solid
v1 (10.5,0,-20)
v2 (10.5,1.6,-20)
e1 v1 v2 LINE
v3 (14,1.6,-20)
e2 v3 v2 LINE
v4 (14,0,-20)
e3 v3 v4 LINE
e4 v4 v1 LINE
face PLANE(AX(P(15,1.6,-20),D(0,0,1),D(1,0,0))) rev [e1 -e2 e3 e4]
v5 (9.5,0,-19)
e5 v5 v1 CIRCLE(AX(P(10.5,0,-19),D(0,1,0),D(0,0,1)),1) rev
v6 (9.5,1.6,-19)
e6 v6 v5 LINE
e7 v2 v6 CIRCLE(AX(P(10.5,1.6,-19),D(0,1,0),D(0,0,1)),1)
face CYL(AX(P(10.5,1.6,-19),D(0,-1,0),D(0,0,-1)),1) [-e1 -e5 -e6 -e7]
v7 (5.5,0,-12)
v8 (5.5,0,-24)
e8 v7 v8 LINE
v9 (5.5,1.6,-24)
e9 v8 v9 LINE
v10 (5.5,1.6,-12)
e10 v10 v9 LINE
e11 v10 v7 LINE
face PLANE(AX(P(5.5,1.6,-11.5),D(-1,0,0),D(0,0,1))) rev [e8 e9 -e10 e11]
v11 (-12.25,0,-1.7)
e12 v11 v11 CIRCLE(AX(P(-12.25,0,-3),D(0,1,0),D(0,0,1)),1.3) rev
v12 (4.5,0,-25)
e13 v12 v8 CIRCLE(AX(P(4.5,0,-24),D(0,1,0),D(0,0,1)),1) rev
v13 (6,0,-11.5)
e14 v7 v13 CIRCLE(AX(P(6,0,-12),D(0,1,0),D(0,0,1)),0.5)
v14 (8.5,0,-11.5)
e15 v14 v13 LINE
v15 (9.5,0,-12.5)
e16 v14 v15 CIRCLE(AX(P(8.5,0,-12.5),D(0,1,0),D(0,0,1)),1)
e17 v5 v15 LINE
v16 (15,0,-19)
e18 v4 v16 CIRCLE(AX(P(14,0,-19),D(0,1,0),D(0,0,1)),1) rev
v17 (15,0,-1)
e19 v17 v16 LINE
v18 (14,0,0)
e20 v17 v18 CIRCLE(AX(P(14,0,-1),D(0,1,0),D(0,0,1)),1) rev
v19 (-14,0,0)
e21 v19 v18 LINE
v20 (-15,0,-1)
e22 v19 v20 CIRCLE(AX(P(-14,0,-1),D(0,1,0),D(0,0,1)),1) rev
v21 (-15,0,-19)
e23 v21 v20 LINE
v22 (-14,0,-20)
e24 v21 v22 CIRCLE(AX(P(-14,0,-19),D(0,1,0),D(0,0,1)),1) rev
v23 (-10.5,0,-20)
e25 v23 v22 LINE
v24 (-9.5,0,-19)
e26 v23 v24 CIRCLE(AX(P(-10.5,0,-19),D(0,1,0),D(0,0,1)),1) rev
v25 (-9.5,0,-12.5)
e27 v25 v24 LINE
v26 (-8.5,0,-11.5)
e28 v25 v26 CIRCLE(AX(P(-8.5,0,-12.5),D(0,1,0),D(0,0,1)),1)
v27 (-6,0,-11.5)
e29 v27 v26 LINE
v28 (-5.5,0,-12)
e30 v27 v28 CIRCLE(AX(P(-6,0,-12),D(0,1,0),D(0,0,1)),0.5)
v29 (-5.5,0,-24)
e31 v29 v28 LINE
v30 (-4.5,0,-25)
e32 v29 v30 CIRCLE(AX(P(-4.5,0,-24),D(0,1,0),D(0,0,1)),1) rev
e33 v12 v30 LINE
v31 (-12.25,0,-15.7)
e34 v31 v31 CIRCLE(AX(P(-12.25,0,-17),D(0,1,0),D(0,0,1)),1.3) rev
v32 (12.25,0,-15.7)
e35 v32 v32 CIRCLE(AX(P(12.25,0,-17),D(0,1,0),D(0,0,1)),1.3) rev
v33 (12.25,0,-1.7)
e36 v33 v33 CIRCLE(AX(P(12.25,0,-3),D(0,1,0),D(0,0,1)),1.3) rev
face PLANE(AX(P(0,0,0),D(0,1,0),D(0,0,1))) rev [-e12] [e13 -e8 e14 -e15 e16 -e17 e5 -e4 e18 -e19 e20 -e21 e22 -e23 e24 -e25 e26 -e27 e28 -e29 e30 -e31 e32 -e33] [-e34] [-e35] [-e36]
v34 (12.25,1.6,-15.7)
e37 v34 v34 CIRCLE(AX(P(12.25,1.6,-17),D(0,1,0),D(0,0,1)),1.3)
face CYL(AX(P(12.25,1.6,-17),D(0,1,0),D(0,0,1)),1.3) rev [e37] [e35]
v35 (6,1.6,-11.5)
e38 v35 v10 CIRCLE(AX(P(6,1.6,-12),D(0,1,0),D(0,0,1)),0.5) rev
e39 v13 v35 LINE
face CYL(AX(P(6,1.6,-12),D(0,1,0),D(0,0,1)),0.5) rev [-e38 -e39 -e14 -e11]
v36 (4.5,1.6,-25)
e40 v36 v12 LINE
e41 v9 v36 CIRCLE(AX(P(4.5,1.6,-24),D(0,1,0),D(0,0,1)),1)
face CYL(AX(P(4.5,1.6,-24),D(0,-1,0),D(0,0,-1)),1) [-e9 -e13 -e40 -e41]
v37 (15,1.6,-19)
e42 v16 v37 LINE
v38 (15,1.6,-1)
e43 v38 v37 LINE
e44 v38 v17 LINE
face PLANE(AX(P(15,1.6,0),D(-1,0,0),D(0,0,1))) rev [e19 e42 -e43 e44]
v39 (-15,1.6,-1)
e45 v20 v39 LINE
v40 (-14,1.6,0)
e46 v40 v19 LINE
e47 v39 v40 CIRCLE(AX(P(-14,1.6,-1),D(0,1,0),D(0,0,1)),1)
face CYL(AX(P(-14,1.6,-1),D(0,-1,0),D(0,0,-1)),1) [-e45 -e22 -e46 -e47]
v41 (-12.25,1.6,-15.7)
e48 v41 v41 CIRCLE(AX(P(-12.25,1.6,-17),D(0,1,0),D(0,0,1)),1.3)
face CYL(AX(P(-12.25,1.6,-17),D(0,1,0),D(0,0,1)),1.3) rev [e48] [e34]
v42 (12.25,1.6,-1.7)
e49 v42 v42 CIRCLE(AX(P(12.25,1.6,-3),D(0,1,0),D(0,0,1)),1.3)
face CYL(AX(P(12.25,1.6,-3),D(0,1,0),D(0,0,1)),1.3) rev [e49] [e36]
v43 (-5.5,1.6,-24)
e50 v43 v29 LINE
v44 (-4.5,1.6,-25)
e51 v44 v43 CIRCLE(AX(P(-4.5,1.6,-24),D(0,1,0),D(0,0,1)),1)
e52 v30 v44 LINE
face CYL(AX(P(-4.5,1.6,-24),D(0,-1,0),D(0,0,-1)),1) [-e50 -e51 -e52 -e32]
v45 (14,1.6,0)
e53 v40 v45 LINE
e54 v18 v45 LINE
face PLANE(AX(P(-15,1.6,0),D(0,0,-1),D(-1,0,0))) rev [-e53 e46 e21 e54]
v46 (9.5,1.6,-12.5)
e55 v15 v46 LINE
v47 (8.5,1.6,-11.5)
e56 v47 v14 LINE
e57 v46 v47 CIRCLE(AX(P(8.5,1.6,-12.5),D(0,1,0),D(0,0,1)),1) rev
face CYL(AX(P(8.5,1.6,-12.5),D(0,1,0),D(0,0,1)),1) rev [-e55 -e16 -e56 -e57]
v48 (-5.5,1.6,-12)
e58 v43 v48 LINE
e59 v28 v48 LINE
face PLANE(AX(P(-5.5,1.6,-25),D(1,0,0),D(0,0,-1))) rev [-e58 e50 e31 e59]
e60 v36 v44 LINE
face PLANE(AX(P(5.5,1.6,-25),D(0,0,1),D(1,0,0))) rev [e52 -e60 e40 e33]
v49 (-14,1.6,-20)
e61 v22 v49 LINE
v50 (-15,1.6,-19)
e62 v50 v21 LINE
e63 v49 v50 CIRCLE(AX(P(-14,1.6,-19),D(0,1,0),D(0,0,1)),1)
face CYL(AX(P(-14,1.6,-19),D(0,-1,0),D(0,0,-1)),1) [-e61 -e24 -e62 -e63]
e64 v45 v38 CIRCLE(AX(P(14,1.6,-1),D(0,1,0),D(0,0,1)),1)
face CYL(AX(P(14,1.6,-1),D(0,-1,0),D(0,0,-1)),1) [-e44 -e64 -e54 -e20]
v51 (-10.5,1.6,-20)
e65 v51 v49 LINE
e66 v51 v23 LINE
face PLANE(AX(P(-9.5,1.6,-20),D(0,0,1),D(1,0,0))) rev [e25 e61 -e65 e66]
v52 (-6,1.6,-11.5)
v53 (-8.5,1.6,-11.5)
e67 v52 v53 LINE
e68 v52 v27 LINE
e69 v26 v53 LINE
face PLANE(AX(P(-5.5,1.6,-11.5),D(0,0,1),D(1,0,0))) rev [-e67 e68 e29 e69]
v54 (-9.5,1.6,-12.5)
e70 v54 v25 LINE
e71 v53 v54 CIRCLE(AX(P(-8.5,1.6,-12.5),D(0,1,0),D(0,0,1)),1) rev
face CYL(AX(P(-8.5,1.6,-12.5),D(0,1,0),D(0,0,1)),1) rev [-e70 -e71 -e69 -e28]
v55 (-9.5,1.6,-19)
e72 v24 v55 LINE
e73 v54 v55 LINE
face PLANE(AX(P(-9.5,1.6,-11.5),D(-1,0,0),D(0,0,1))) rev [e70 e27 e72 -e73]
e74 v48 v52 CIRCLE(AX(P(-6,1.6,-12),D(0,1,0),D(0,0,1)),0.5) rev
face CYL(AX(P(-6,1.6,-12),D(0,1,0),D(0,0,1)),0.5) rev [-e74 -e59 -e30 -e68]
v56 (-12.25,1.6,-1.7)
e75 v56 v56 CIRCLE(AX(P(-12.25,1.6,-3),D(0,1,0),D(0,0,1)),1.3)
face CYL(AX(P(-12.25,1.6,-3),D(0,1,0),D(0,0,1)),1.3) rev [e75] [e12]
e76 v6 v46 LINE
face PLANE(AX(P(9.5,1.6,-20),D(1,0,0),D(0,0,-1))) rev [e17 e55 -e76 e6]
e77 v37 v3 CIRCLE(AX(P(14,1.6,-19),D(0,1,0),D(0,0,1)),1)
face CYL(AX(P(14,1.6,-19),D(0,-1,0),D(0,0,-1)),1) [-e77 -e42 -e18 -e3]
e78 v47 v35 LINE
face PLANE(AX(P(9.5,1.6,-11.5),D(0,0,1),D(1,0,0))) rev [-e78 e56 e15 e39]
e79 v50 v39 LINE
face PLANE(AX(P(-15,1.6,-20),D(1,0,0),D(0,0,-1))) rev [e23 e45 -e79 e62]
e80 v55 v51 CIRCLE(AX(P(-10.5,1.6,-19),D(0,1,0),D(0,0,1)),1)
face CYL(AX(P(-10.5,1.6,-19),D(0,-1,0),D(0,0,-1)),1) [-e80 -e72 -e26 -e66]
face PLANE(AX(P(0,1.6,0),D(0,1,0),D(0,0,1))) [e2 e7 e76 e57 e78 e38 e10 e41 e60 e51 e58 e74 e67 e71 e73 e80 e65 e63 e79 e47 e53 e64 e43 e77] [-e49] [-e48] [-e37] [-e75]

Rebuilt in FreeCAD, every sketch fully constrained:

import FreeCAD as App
import Part
import Sketcher
from FreeCAD import Vector
Q = App.Units.Quantity


def edges_at(feature, points):
    """Names of the edges that pass closest to the given points."""
    edges = feature.Shape.Edges
    near = lambda p: min(range(len(edges)), key=lambda i: edges[i].distToShape(Part.Vertex(*p))[0])
    return sorted({f"Edge{near(p) + 1}" for p in points})


def add_polygon(sketch, points):
    """Adds a closed chain of lines whose ends are joined by coincident constraints."""
    first, n = sketch.GeometryCount, len(points)
    for a, b in zip(points, points[1:] + points[:1]):
        sketch.addGeometry(Part.LineSegment(App.Vector(*a, 0), App.Vector(*b, 0)), False)
    for i in range(n):
        sketch.addConstraint(Sketcher.Constraint("Coincident", first + i, 2, first + (i + 1) % n, 1))

doc = App.newDocument("Part")
body = doc.addObject("PartDesign::Body", "Body")

# Sketch on XZ plane
sketch1 = body.newObject("Sketcher::SketchObject", "Sketch")
sketch1.AttachmentSupport = (doc.getObject("XZ_Plane"), [""])
sketch1.MapMode = "FlatFace"
add_polygon(sketch1, [(-15, -20), (-15, 0), (15, 0), (15, -20), (9.5, -20), (9.5, -11.5), (5.5, -11.5), (5.5, -25), (-5.5, -25), (-5.5, -11.5), (-9.5, -11.5), (-9.5, -20)])  # lines 0-11
sketch1.addConstraint([
    Sketcher.Constraint("Vertical", 0),
    Sketcher.Constraint("Horizontal", 1),
    Sketcher.Constraint("Vertical", 2),
    Sketcher.Constraint("Horizontal", 3),
    Sketcher.Constraint("Vertical", 4),
    Sketcher.Constraint("Horizontal", 5),
    Sketcher.Constraint("Vertical", 6),
    Sketcher.Constraint("Horizontal", 7),
    Sketcher.Constraint("Vertical", 8),
    Sketcher.Constraint("Horizontal", 9),
    Sketcher.Constraint("Vertical", 10),
    Sketcher.Constraint("Horizontal", 11),
    Sketcher.Constraint("Symmetric", 0, 2, 1, 2, -1, 1),
    Sketcher.Constraint("Symmetric", 5, 2, 8, 2, -2),
    Sketcher.Constraint("Symmetric", 3, 2, 10, 2, -2),
    Sketcher.Constraint("DistanceX", 1, 1, 1, 2, Q("30 mm")),
    Sketcher.Constraint("DistanceX", 5, 2, 5, 1, Q("4 mm")),
    Sketcher.Constraint("DistanceX", 7, 2, 7, 1, Q("11 mm")),
    Sketcher.Constraint("DistanceY", 0, 1, 0, 2, Q("20 mm")),
    Sketcher.Constraint("DistanceY", 4, 1, 4, 2, Q("8.5 mm")),
    Sketcher.Constraint("DistanceY", 6, 2, 6, 1, Q("13.5 mm")),
])
pad1 = body.newObject("PartDesign::Pad", "Pad")
pad1.Profile = sketch1
pad1.Length = 1.6
pad1.Reversed = True
doc.recompute()

fillet = body.newObject("PartDesign::Fillet", "Fillet")
fillet.Base = (pad1, edges_at(pad1, [
    (-9.5, 0.8, -20),
    (-9.5, 0.8, -11.5),
    (-5.5, 0.8, -25),
    (5.5, 0.8, -25),
    (9.5, 0.8, -11.5),
    (9.5, 0.8, -20),
    (15, 0.8, -20),
    (15, 0.8, 0),
    (-15, 0.8, 0),
    (-15, 0.8, -20),
]))
fillet.Radius = 1

# Sketch on XZ plane
sketch2 = body.newObject("Sketcher::SketchObject", "Sketch001")
sketch2.AttachmentSupport = (doc.getObject("XZ_Plane"), [""])
sketch2.MapMode = "FlatFace"
sketch2.AttachmentOffset = App.Placement(Vector(0, 0, -1.6), App.Rotation())
sketch2.addGeometry([
    Part.Circle(Vector(-12.2, -17, 0), Vector(0, 0, 1), 1.3),
    Part.Circle(Vector(-12.2, -3, 0), Vector(0, 0, 1), 1.3),
    Part.Circle(Vector(12.2, -3, 0), Vector(0, 0, 1), 1.3),
    Part.Circle(Vector(12.2, -17, 0), Vector(0, 0, 1), 1.3),
], False)
sketch2.addConstraint([
    Sketcher.Constraint("Equal", 0, 1),
    Sketcher.Constraint("Equal", 1, 2),
    Sketcher.Constraint("Equal", 2, 3),
    Sketcher.Constraint("Symmetric", 1, 3, 2, 3, -2),
    Sketcher.Constraint("Symmetric", 0, 3, 3, 3, -2),
    Sketcher.Constraint("Vertical", 0, 3, 1, 3),
    Sketcher.Constraint("Diameter", 0, Q("2.6 mm")),
    Sketcher.Constraint("DistanceY", 0, 3, -1, 1, Q("17 mm")),
    Sketcher.Constraint("DistanceY", 1, 3, -1, 1, Q("3 mm")),
    Sketcher.Constraint("DistanceX", 1, 3, 2, 3, Q("24.5 mm")),
])
doc.recompute()
hole = body.newObject("PartDesign::Hole", "Hole")
hole.Profile = sketch2
hole.ThreadType = "None"
hole.Diameter = 2.6
hole.DepthType = "Dimension"
hole.Depth = 1.6
hole.DrillPoint = "Angled"
hole.DrillPointAngle = 118
hole.Reversed = True
doc.recompute()

fillet2 = body.newObject("PartDesign::Fillet", "Fillet001")
fillet2.Base = (hole, edges_at(hole, [(-5.5, 0.8, -11.5), (5.5, 0.8, -11.5)]))
fillet2.Radius = 0.5

doc.recompute()
